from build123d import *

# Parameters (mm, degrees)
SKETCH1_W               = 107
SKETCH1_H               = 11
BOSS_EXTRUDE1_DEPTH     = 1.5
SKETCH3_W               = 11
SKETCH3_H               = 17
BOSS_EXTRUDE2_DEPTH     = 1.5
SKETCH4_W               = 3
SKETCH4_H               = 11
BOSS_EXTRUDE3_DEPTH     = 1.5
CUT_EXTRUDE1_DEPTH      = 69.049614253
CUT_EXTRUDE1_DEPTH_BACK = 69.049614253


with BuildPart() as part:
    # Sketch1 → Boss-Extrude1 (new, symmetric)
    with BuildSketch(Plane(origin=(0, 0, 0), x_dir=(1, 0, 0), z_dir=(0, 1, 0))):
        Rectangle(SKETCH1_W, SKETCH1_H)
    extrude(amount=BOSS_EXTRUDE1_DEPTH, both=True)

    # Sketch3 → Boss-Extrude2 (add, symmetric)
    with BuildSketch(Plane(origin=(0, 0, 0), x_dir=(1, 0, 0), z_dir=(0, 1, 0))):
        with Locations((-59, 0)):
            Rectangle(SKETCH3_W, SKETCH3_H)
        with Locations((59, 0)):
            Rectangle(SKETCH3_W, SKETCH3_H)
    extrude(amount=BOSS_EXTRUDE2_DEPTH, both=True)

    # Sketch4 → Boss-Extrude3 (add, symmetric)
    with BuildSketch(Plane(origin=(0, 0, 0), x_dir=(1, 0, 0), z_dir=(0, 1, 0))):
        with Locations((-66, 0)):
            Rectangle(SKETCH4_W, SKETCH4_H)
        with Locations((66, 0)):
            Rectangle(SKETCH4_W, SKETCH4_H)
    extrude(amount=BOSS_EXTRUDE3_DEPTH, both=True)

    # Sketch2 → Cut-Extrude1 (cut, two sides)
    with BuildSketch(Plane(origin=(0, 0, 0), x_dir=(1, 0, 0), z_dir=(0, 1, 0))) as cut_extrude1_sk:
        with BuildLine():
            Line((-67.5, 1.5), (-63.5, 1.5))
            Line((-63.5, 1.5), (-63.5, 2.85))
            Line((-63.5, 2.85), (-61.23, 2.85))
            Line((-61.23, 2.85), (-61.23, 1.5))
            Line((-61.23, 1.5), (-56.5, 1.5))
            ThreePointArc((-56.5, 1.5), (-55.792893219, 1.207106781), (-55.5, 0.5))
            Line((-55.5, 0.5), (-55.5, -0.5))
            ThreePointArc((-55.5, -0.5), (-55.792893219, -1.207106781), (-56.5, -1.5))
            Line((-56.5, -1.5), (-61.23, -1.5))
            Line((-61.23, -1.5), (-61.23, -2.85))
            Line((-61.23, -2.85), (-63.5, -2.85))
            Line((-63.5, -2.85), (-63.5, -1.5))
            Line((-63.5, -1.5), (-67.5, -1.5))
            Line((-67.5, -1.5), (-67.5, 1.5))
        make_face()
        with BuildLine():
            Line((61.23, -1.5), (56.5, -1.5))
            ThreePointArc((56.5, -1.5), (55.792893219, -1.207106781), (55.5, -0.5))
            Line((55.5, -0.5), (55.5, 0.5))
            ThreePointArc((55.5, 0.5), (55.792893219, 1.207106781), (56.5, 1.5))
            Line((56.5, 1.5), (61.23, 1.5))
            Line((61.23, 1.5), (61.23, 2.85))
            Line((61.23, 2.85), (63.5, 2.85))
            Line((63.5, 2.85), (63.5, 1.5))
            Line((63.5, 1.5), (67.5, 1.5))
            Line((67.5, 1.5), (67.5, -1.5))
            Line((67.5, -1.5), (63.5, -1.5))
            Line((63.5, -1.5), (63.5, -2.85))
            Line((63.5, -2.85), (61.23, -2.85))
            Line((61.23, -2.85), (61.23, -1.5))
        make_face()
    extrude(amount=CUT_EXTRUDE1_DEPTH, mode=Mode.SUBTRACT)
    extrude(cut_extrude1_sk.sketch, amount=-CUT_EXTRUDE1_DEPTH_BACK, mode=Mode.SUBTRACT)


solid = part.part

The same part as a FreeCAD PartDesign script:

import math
import FreeCAD as App
import Part
import Sketcher
from FreeCAD import Vector
Q = App.Units.Quantity

doc = App.newDocument("Part")
params = doc.addObject("Spreadsheet::Sheet", "Params")
for row, (alias, value) in enumerate([
    ("sketch1_width", "107 mm"),
    ("sketch1_height", "11 mm"),
    ("pad1_length", "3 mm"),
    ("sketch2_width", "11 mm"),
    ("sketch2_height", "17 mm"),
    ("pad2_length", "3 mm"),
    ("sketch3_width", "3 mm"),
    ("sketch3_height", "11 mm"),
    ("pad3_length", "3 mm"),
    ("sketch4_radius", "1 mm"),
    ("sketch4_width", "4 mm"),
    ("sketch4_height", "3 mm"),
    ("sketch4_width2", "2.27 mm"),
    ("sketch4_height2", "1.35 mm"),
], start=1):
    params.set(f"A{row}", alias)
    params.set(f"B{row}", "=" + value)
    params.setAlias(f"B{row}", alias)

body = doc.addObject("PartDesign::Body", "Body")

# Sketch on XZ plane
sketch1 = body.newObject("Sketcher::SketchObject", "Sketch")
sketch1.AttachmentSupport = (doc.getObject("XZ_Plane"), [""])
sketch1.MapMode = "FlatFace"
sketch1.addGeometry(Part.LineSegment(Vector(-54, -6, 0), Vector(-54, 6, 0)), False)
sketch1.addGeometry(Part.LineSegment(Vector(-54, 6, 0), Vector(54, 6, 0)), False)
sketch1.addGeometry(Part.LineSegment(Vector(54, 6, 0), Vector(54, -6, 0)), False)
sketch1.addGeometry(Part.LineSegment(Vector(54, -6, 0), Vector(-54, -6, 0)), False)
sketch1.addConstraint(Sketcher.Constraint("Coincident", 0, 2, 1, 1))
sketch1.addConstraint(Sketcher.Constraint("Coincident", 1, 2, 2, 1))
sketch1.addConstraint(Sketcher.Constraint("Coincident", 2, 2, 3, 1))
sketch1.addConstraint(Sketcher.Constraint("Coincident", 3, 2, 0, 1))
sketch1.addConstraint(Sketcher.Constraint("Vertical", 0))
sketch1.addConstraint(Sketcher.Constraint("Horizontal", 1))
sketch1.addConstraint(Sketcher.Constraint("Vertical", 2))
sketch1.addConstraint(Sketcher.Constraint("Horizontal", 3))
sketch1.addConstraint(Sketcher.Constraint("Symmetric", 0, 2, 2, 2, -1, 1))
sketch1.addConstraint(Sketcher.Constraint("DistanceX", 1, 1, 1, 2, Q("107 mm")))
sketch1.addConstraint(Sketcher.Constraint("DistanceY", 0, 1, 0, 2, Q("11 mm")))
sketch1.setExpression("Constraints[9]", "Params.sketch1_width")
sketch1.setExpression("Constraints[10]", "Params.sketch1_height")
pad1 = body.newObject("PartDesign::Pad", "Pad")
pad1.Profile = sketch1
pad1.setExpression("Length", "Params.pad1_length")
pad1.Midplane = True

# Sketch on XZ plane
sketch2 = body.newObject("Sketcher::SketchObject", "Sketch001")
sketch2.AttachmentSupport = (doc.getObject("XZ_Plane"), [""])
sketch2.MapMode = "FlatFace"
sketch2.addGeometry(Part.LineSegment(Vector(-64, -8, 0), Vector(-64, 8, 0)), False)
sketch2.addGeometry(Part.LineSegment(Vector(-64, 8, 0), Vector(-54, 8, 0)), False)
sketch2.addGeometry(Part.LineSegment(Vector(-54, 8, 0), Vector(-54, -8, 0)), False)
sketch2.addGeometry(Part.LineSegment(Vector(-54, -8, 0), Vector(-64, -8, 0)), False)
sketch2.addGeometry(Part.LineSegment(Vector(54, -8, 0), Vector(54, 8, 0)), False)
sketch2.addGeometry(Part.LineSegment(Vector(54, 8, 0), Vector(64, 8, 0)), False)
sketch2.addGeometry(Part.LineSegment(Vector(64, 8, 0), Vector(64, -8, 0)), False)
sketch2.addGeometry(Part.LineSegment(Vector(64, -8, 0), Vector(54, -8, 0)), False)
sketch2.addConstraint(Sketcher.Constraint("Coincident", 0, 2, 1, 1))
sketch2.addConstraint(Sketcher.Constraint("Coincident", 1, 2, 2, 1))
sketch2.addConstraint(Sketcher.Constraint("Coincident", 2, 2, 3, 1))
sketch2.addConstraint(Sketcher.Constraint("Coincident", 3, 2, 0, 1))
sketch2.addConstraint(Sketcher.Constraint("Coincident", 4, 2, 5, 1))
sketch2.addConstraint(Sketcher.Constraint("Coincident", 5, 2, 6, 1))
sketch2.addConstraint(Sketcher.Constraint("Coincident", 6, 2, 7, 1))
sketch2.addConstraint(Sketcher.Constraint("Coincident", 7, 2, 4, 1))
sketch2.addConstraint(Sketcher.Constraint("Vertical", 0))
sketch2.addConstraint(Sketcher.Constraint("Horizontal", 1))
sketch2.addConstraint(Sketcher.Constraint("Vertical", 2))
sketch2.addConstraint(Sketcher.Constraint("Horizontal", 3))
sketch2.addConstraint(Sketcher.Constraint("Vertical", 4))
sketch2.addConstraint(Sketcher.Constraint("Horizontal", 5))
sketch2.addConstraint(Sketcher.Constraint("Vertical", 6))
sketch2.addConstraint(Sketcher.Constraint("Horizontal", 7))
sketch2.addConstraint(Sketcher.Constraint("Symmetric", 2, 2, 4, 2, -1, 1))
sketch2.addConstraint(Sketcher.Constraint("Symmetric", 0, 2, 6, 2, -1, 1))
sketch2.addConstraint(Sketcher.Constraint("Horizontal", 1, 2, 4, 2))
sketch2.addConstraint(Sketcher.Constraint("DistanceX", 1, 1, 1, 2, Q("11 mm")))
sketch2.addConstraint(Sketcher.Constraint("DistanceY", 0, 1, 0, 2, Q("17 mm")))
sketch2.addConstraint(Sketcher.Constraint("DistanceX", 1, 2, 4, 2, Q("107 mm")))
sketch2.setExpression("Constraints[19]", "Params.sketch2_width")
sketch2.setExpression("Constraints[20]", "Params.sketch2_height")
pad2 = body.newObject("PartDesign::Pad", "Pad001")
pad2.Profile = sketch2
pad2.setExpression("Length", "Params.pad2_length")
pad2.Midplane = True

# Sketch on XZ plane
sketch3 = body.newObject("Sketcher::SketchObject", "Sketch002")
sketch3.AttachmentSupport = (doc.getObject("XZ_Plane"), [""])
sketch3.MapMode = "FlatFace"
sketch3.addGeometry(Part.LineSegment(Vector(-67.5, -5.5, 0), Vector(-67.5, 5.5, 0)), False)
sketch3.addGeometry(Part.LineSegment(Vector(-67.5, 5.5, 0), Vector(-64.5, 5.5, 0)), False)
sketch3.addGeometry(Part.LineSegment(Vector(-64.5, 5.5, 0), Vector(-64.5, -5.5, 0)), False)
sketch3.addGeometry(Part.LineSegment(Vector(-64.5, -5.5, 0), Vector(-67.5, -5.5, 0)), False)
sketch3.addGeometry(Part.LineSegment(Vector(64.5, -5.5, 0), Vector(64.5, 5.5, 0)), False)
sketch3.addGeometry(Part.LineSegment(Vector(64.5, 5.5, 0), Vector(67.5, 5.5, 0)), False)
sketch3.addGeometry(Part.LineSegment(Vector(67.5, 5.5, 0), Vector(67.5, -5.5, 0)), False)
sketch3.addGeometry(Part.LineSegment(Vector(67.5, -5.5, 0), Vector(64.5, -5.5, 0)), False)
sketch3.addConstraint(Sketcher.Constraint("Coincident", 0, 2, 1, 1))
sketch3.addConstraint(Sketcher.Constraint("Coincident", 1, 2, 2, 1))
sketch3.addConstraint(Sketcher.Constraint("Coincident", 2, 2, 3, 1))
sketch3.addConstraint(Sketcher.Constraint("Coincident", 3, 2, 0, 1))
sketch3.addConstraint(Sketcher.Constraint("Coincident", 4, 2, 5, 1))
sketch3.addConstraint(Sketcher.Constraint("Coincident", 5, 2, 6, 1))
sketch3.addConstraint(Sketcher.Constraint("Coincident", 6, 2, 7, 1))
sketch3.addConstraint(Sketcher.Constraint("Coincident", 7, 2, 4, 1))
sketch3.addConstraint(Sketcher.Constraint("Vertical", 0))
sketch3.addConstraint(Sketcher.Constraint("Horizontal", 1))
sketch3.addConstraint(Sketcher.Constraint("Vertical", 2))
sketch3.addConstraint(Sketcher.Constraint("Horizontal", 3))
sketch3.addConstraint(Sketcher.Constraint("Vertical", 4))
sketch3.addConstraint(Sketcher.Constraint("Horizontal", 5))
sketch3.addConstraint(Sketcher.Constraint("Vertical", 6))
sketch3.addConstraint(Sketcher.Constraint("Horizontal", 7))
sketch3.addConstraint(Sketcher.Constraint("Symmetric", 2, 2, 4, 2, -1, 1))
sketch3.addConstraint(Sketcher.Constraint("Symmetric", 0, 2, 6, 2, -1, 1))
sketch3.addConstraint(Sketcher.Constraint("Horizontal", 1, 2, 4, 2))
sketch3.addConstraint(Sketcher.Constraint("DistanceX", 1, 1, 1, 2, Q("3 mm")))
sketch3.addConstraint(Sketcher.Constraint("DistanceY", 0, 1, 0, 2, Q("11 mm")))
sketch3.addConstraint(Sketcher.Constraint("DistanceX", 1, 2, 4, 2, Q("129 mm")))
sketch3.setExpression("Constraints[19]", "Params.sketch3_width")
sketch3.setExpression("Constraints[20]", "Params.sketch3_height")
pad3 = body.newObject("PartDesign::Pad", "Pad002")
pad3.Profile = sketch3
pad3.setExpression("Length", "Params.pad3_length")
pad3.Midplane = True

# Sketch on XZ plane
sketch4 = body.newObject("Sketcher::SketchObject", "Sketch003")
sketch4.AttachmentSupport = (doc.getObject("XZ_Plane"), [""])
sketch4.MapMode = "FlatFace"
sketch4.addGeometry(Part.LineSegment(Vector(-63.5, -1.5, 0), Vector(-67.5, -1.5, 0)), False)
sketch4.addGeometry(Part.LineSegment(Vector(-67.5, -1.5, 0), Vector(-67.5, 1.5, 0)), False)
sketch4.addGeometry(Part.LineSegment(Vector(-67.5, 1.5, 0), Vector(-63.5, 1.5, 0)), False)
sketch4.addGeometry(Part.LineSegment(Vector(-63.5, 1.5, 0), Vector(-63.5, 2.9, 0)), False)
sketch4.addGeometry(Part.LineSegment(Vector(-63.5, 2.9, 0), Vector(-61.2, 2.9, 0)), False)
sketch4.addGeometry(Part.LineSegment(Vector(-61.2, 2.9, 0), Vector(-61.2, 1.5, 0)), False)
sketch4.addGeometry(Part.LineSegment(Vector(-61.2, 1.5, 0), Vector(-56.5, 1.5, 0)), False)
sketch4.addGeometry(Part.ArcOfCircle(Part.Circle(Vector(-56.5, 0.5, 0), Vector(0, 0, 1), 1), math.radians(0), math.radians(90)), False)
sketch4.addGeometry(Part.LineSegment(Vector(-55.5, 0.5, 0), Vector(-55.5, -0.5, 0)), False)
sketch4.addGeometry(Part.ArcOfCircle(Part.Circle(Vector(-56.5, -0.5, 0), Vector(0, 0, 1), 1), math.radians(-90), math.radians(0)), False)
sketch4.addGeometry(Part.LineSegment(Vector(-56.5, -1.5, 0), Vector(-61.2, -1.5, 0)), False)
sketch4.addGeometry(Part.LineSegment(Vector(-61.2, -1.5, 0), Vector(-61.2, -2.9, 0)), False)
sketch4.addGeometry(Part.LineSegment(Vector(-61.2, -2.9, 0), Vector(-63.5, -2.9, 0)), False)
sketch4.addGeometry(Part.LineSegment(Vector(-63.5, -2.9, 0), Vector(-63.5, -1.5, 0)), False)
sketch4.addGeometry(Part.LineSegment(Vector(56.5, 1.5, 0), Vector(61.2, 1.5, 0)), False)
sketch4.addGeometry(Part.LineSegment(Vector(61.2, 1.5, 0), Vector(61.2, 2.9, 0)), False)
sketch4.addGeometry(Part.LineSegment(Vector(61.2, 2.9, 0), Vector(63.5, 2.9, 0)), False)
sketch4.addGeometry(Part.LineSegment(Vector(63.5, 2.9, 0), Vector(63.5, 1.5, 0)), False)
sketch4.addGeometry(Part.LineSegment(Vector(63.5, 1.5, 0), Vector(67.5, 1.5, 0)), False)
sketch4.addGeometry(Part.LineSegment(Vector(67.5, 1.5, 0), Vector(67.5, -1.5, 0)), False)
sketch4.addGeometry(Part.LineSegment(Vector(67.5, -1.5, 0), Vector(63.5, -1.5, 0)), False)
sketch4.addGeometry(Part.LineSegment(Vector(63.5, -1.5, 0), Vector(63.5, -2.9, 0)), False)
sketch4.addGeometry(Part.LineSegment(Vector(63.5, -2.9, 0), Vector(61.2, -2.9, 0)), False)
sketch4.addGeometry(Part.LineSegment(Vector(61.2, -2.9, 0), Vector(61.2, -1.5, 0)), False)
sketch4.addGeometry(Part.LineSegment(Vector(61.2, -1.5, 0), Vector(56.5, -1.5, 0)), False)
sketch4.addGeometry(Part.ArcOfCircle(Part.Circle(Vector(56.5, -0.5, 0), Vector(0, 0, 1), 1), math.radians(-180), math.radians(-90)), False)
sketch4.addGeometry(Part.LineSegment(Vector(55.5, -0.5, 0), Vector(55.5, 0.5, 0)), False)
sketch4.addGeometry(Part.ArcOfCircle(Part.Circle(Vector(56.5, 0.5, 0), Vector(0, 0, 1), 1), math.radians(90), math.radians(180)), False)
sketch4.addConstraint(Sketcher.Constraint("Coincident", 0, 2, 1, 1))
sketch4.addConstraint(Sketcher.Constraint("Coincident", 1, 2, 2, 1))
sketch4.addConstraint(Sketcher.Constraint("Coincident", 2, 2, 3, 1))
sketch4.addConstraint(Sketcher.Constraint("Coincident", 3, 2, 4, 1))
sketch4.addConstraint(Sketcher.Constraint("Coincident", 4, 2, 5, 1))
sketch4.addConstraint(Sketcher.Constraint("Coincident", 5, 2, 6, 1))
sketch4.addConstraint(Sketcher.Constraint("Tangent", 6, 2, 7, 2))
sketch4.addConstraint(Sketcher.Constraint("Tangent", 7, 1, 8, 1))
sketch4.addConstraint(Sketcher.Constraint("Tangent", 8, 2, 9, 2))
sketch4.addConstraint(Sketcher.Constraint("Tangent", 9, 1, 10, 1))
sketch4.addConstraint(Sketcher.Constraint("Coincident", 10, 2, 11, 1))
sketch4.addConstraint(Sketcher.Constraint("Coincident", 11, 2, 12, 1))
sketch4.addConstraint(Sketcher.Constraint("Coincident", 12, 2, 13, 1))
sketch4.addConstraint(Sketcher.Constraint("Coincident", 13, 2, 0, 1))
sketch4.addConstraint(Sketcher.Constraint("Coincident", 14, 2, 15, 1))
sketch4.addConstraint(Sketcher.Constraint("Coincident", 15, 2, 16, 1))
sketch4.addConstraint(Sketcher.Constraint("Coincident", 16, 2, 17, 1))
sketch4.addConstraint(Sketcher.Constraint("Coincident", 17, 2, 18, 1))
sketch4.addConstraint(Sketcher.Constraint("Coincident", 18, 2, 19, 1))
sketch4.addConstraint(Sketcher.Constraint("Coincident", 19, 2, 20, 1))
sketch4.addConstraint(Sketcher.Constraint("Coincident", 20, 2, 21, 1))
sketch4.addConstraint(Sketcher.Constraint("Coincident", 21, 2, 22, 1))
sketch4.addConstraint(Sketcher.Constraint("Coincident", 22, 2, 23, 1))
sketch4.addConstraint(Sketcher.Constraint("Coincident", 23, 2, 24, 1))
sketch4.addConstraint(Sketcher.Constraint("Tangent", 24, 2, 25, 2))
sketch4.addConstraint(Sketcher.Constraint("Tangent", 25, 1, 26, 1))
sketch4.addConstraint(Sketcher.Constraint("Tangent", 26, 2, 27, 2))
sketch4.addConstraint(Sketcher.Constraint("Tangent", 27, 1, 14, 1))
sketch4.addConstraint(Sketcher.Constraint("Horizontal", 0))
sketch4.addConstraint(Sketcher.Constraint("Vertical", 1))
sketch4.addConstraint(Sketcher.Constraint("Horizontal", 2))
sketch4.addConstraint(Sketcher.Constraint("Vertical", 3))
sketch4.addConstraint(Sketcher.Constraint("Horizontal", 4))
sketch4.addConstraint(Sketcher.Constraint("Vertical", 5))
sketch4.addConstraint(Sketcher.Constraint("Horizontal", 6))
sketch4.addConstraint(Sketcher.Constraint("Vertical", 8))
sketch4.addConstraint(Sketcher.Constraint("Horizontal", 10))
sketch4.addConstraint(Sketcher.Constraint("Vertical", 11))
sketch4.addConstraint(Sketcher.Constraint("Horizontal", 12))
sketch4.addConstraint(Sketcher.Constraint("Vertical", 13))
sketch4.addConstraint(Sketcher.Constraint("Horizontal", 14))
sketch4.addConstraint(Sketcher.Constraint("Vertical", 15))
sketch4.addConstraint(Sketcher.Constraint("Horizontal", 16))
sketch4.addConstraint(Sketcher.Constraint("Vertical", 17))
sketch4.addConstraint(Sketcher.Constraint("Horizontal", 18))
sketch4.addConstraint(Sketcher.Constraint("Vertical", 19))
sketch4.addConstraint(Sketcher.Constraint("Horizontal", 20))
sketch4.addConstraint(Sketcher.Constraint("Vertical", 21))
sketch4.addConstraint(Sketcher.Constraint("Horizontal", 22))
sketch4.addConstraint(Sketcher.Constraint("Vertical", 23))
sketch4.addConstraint(Sketcher.Constraint("Horizontal", 24))
sketch4.addConstraint(Sketcher.Constraint("Vertical", 26))
sketch4.addConstraint(Sketcher.Constraint("Equal", 7, 9))
sketch4.addConstraint(Sketcher.Constraint("Equal", 9, 25))
sketch4.addConstraint(Sketcher.Constraint("Equal", 25, 27))
sketch4.addConstraint(Sketcher.Constraint("Symmetric", 7, 3, 25, 3, -1, 1))
sketch4.addConstraint(Sketcher.Constraint("Symmetric", 10, 2, 14, 2, -1, 1))
sketch4.addConstraint(Sketcher.Constraint("Symmetric", 12, 2, 16, 2, -1, 1))
sketch4.addConstraint(Sketcher.Constraint("Symmetric", 0, 2, 18, 2, -1, 1))
sketch4.addConstraint(Sketcher.Constraint("Symmetric", 2, 2, 20, 2, -1, 1))
sketch4.addConstraint(Sketcher.Constraint("Symmetric", 4, 2, 22, 2, -1, 1))
sketch4.addConstraint(Sketcher.Constraint("Symmetric", 5, 2, 14, 2, -2))
sketch4.addConstraint(Sketcher.Constraint("Symmetric", 3, 2, 16, 2, -2))
sketch4.addConstraint(Sketcher.Constraint("Horizontal", 2, 2, 5, 2))
sketch4.addConstraint(Sketcher.Constraint("Horizontal", 0, 2, 9, 1))
sketch4.addConstraint(Sketcher.Constraint("Radius", 7, Q("1 mm")))
sketch4.addConstraint(Sketcher.Constraint("DistanceX", 0, 2, 0, 1, Q("4 mm")))
sketch4.addConstraint(Sketcher.Constraint("DistanceY", 1, 1, 1, 2, Q("3 mm")))
sketch4.addConstraint(Sketcher.Constraint("DistanceX", 9, 3, 25, 3, Q("113 mm")))
sketch4.addConstraint(Sketcher.Constraint("DistanceX", 0, 2, 9, 3, Q("11 mm")))
sketch4.addConstraint(Sketcher.Constraint("DistanceX", 4, 1, 4, 2, Q("2.27 mm")))
sketch4.addConstraint(Sketcher.Constraint("DistanceY", 3, 1, 3, 2, Q("1.35 mm")))
sketch4.setExpression("Constraints[65]", "Params.sketch4_radius")
sketch4.setExpression("Constraints[66]", "Params.sketch4_width")
sketch4.setExpression("Constraints[67]", "Params.sketch4_height")
sketch4.setExpression("Constraints[70]", "Params.sketch4_width2")
sketch4.setExpression("Constraints[71]", "Params.sketch4_height2")
pocket1 = body.newObject("PartDesign::Pocket", "Pocket")
pocket1.Profile = sketch4
pocket1.Type = "ThroughAll"
pocket1.Midplane = True

doc.recompute()
